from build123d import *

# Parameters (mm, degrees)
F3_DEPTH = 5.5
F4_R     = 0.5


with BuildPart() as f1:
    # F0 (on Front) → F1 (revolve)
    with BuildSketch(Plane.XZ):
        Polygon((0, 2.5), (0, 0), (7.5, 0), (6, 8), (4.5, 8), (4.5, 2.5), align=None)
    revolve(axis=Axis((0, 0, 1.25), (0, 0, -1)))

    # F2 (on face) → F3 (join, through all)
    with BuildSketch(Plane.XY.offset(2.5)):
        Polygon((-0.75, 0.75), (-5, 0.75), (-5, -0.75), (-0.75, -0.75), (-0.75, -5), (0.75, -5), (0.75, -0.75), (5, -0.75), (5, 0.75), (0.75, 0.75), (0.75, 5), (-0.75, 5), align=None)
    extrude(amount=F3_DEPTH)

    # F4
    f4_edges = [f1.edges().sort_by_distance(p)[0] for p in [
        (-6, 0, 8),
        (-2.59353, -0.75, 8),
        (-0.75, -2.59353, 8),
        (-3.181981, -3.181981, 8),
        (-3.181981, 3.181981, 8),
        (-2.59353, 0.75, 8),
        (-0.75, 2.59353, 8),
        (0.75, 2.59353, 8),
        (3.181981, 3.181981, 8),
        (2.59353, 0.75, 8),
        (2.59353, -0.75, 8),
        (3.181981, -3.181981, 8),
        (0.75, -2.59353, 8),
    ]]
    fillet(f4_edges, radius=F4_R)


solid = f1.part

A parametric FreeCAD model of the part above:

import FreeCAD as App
import Part
import Sketcher
Q = App.Units.Quantity


def edges_at(feature, points):
    """Names of the edges that pass closest to the given points."""
    edges = feature.Shape.Edges
    near = lambda p: min(range(len(edges)), key=lambda i: edges[i].distToShape(Part.Vertex(*p))[0])
    return sorted({f"Edge{near(p) + 1}" for p in points})


def add_polygon(sketch, points):
    """Adds a closed chain of lines whose ends are joined by coincident constraints."""
    first, n = sketch.GeometryCount, len(points)
    for a, b in zip(points, points[1:] + points[:1]):
        sketch.addGeometry(Part.LineSegment(App.Vector(*a, 0), App.Vector(*b, 0)), False)
    for i in range(n):
        sketch.addConstraint(Sketcher.Constraint("Coincident", first + i, 2, first + (i + 1) % n, 1))

doc = App.newDocument("Part")
body = doc.addObject("PartDesign::Body", "Body")

# Sketch on XZ plane
sketch1 = doc.addObject("Sketcher::SketchObject", "Sketch")
body.addObject(sketch1)
sketch1.AttachmentSupport = (doc.XZ_Plane, [""])
sketch1.MapMode = "FlatFace"
add_polygon(sketch1, [(0, 2.5), (0, 0), (7.5, 0), (6, 8), (4.5, 8), (4.5, 2.5)])  # lines 0-5
sketch1.addConstraint(Sketcher.Constraint("Vertical", 0))
sketch1.addConstraint(Sketcher.Constraint("Horizontal", 1))
sketch1.addConstraint(Sketcher.Constraint("Horizontal", 3))
sketch1.addConstraint(Sketcher.Constraint("Vertical", 4))
sketch1.addConstraint(Sketcher.Constraint("Horizontal", 5))
sketch1.addConstraint(Sketcher.Constraint("Coincident", 0, 2, -1, 1))
sketch1.addConstraint(Sketcher.Constraint("DistanceX", 1, 1, 1, 2, Q("7.5 mm")))
sketch1.addConstraint(Sketcher.Constraint("DistanceX", 3, 2, 3, 1, Q("1.5 mm")))
sketch1.addConstraint(Sketcher.Constraint("DistanceX", 5, 2, 5, 1, Q("4.5 mm")))
sketch1.addConstraint(Sketcher.Constraint("DistanceY", 0, 2, 0, 1, Q("2.5 mm")))
sketch1.addConstraint(Sketcher.Constraint("DistanceY", 4, 2, 4, 1, Q("5.5 mm")))
revolution = doc.addObject("PartDesign::Revolution", "Revolution")
body.addObject(revolution)
revolution.Profile = sketch1
revolution.ReferenceAxis = (sketch1, ["V_Axis"])
revolution.Angle = 360

# Sketch on XY plane
sketch2 = doc.addObject("Sketcher::SketchObject", "Sketch001")
body.addObject(sketch2)
sketch2.AttachmentSupport = (doc.XY_Plane, [""])
sketch2.MapMode = "FlatFace"
sketch2.AttachmentOffset = App.Placement(App.Vector(0, 0, 2.5), App.Rotation())
add_polygon(sketch2, [(-0.75, 0.75), (-5, 0.75), (-5, -0.75), (-0.75, -0.75), (-0.75, -5), (0.75, -5), (0.75, -0.75), (5, -0.75), (5, 0.75), (0.75, 0.75), (0.75, 5), (-0.75, 5)])  # lines 0-11
sketch2.addConstraint(Sketcher.Constraint("Horizontal", 0))
sketch2.addConstraint(Sketcher.Constraint("Vertical", 1))
sketch2.addConstraint(Sketcher.Constraint("Horizontal", 2))
sketch2.addConstraint(Sketcher.Constraint("Vertical", 3))
sketch2.addConstraint(Sketcher.Constraint("Horizontal", 4))
sketch2.addConstraint(Sketcher.Constraint("Vertical", 5))
sketch2.addConstraint(Sketcher.Constraint("Horizontal", 6))
sketch2.addConstraint(Sketcher.Constraint("Vertical", 7))
sketch2.addConstraint(Sketcher.Constraint("Horizontal", 8))
sketch2.addConstraint(Sketcher.Constraint("Vertical", 9))
sketch2.addConstraint(Sketcher.Constraint("Horizontal", 10))
sketch2.addConstraint(Sketcher.Constraint("Vertical", 11))
sketch2.addConstraint(Sketcher.Constraint("Symmetric", 0, 2, 6, 2, -1, 1))
sketch2.addConstraint(Sketcher.Constraint("Symmetric", 2, 2, 8, 2, -1, 1))
sketch2.addConstraint(Sketcher.Constraint("Symmetric", 4, 2, 10, 2, -1, 1))
sketch2.addConstraint(Sketcher.Constraint("Symmetric", 2, 2, 5, 2, -2))
sketch2.addConstraint(Sketcher.Constraint("Equal", 10, 1))
sketch2.addConstraint(Sketcher.Constraint("Equal", 8, 3))
sketch2.addConstraint(Sketcher.Constraint("DistanceX", 4, 1, 4, 2, Q("1.5 mm")))
sketch2.addConstraint(Sketcher.Constraint("DistanceX", 0, 2, -1, 1, Q("5 mm")))
pad1 = doc.addObject("PartDesign::Pad", "Pad")
body.addObject(pad1)
pad1.Profile = sketch2
pad1.Length = 5.5
doc.recompute()

fillet = doc.addObject("PartDesign::Fillet", "Fillet")
body.addObject(fillet)
fillet.Base = (pad1, edges_at(pad1, [
    (-6, 0, 8),
    (-2.594, -0.75, 8),
    (-0.75, -2.594, 8),
    (-3.182, -3.182, 8),
    (-3.182, 3.182, 8),
    (-2.594, 0.75, 8),
    (-0.75, 2.594, 8),
    (0.75, 2.594, 8),
    (3.182, 3.182, 8),
    (2.594, 0.75, 8),
    (2.594, -0.75, 8),
    (3.182, -3.182, 8),
    (0.75, -2.594, 8),
]))
fillet.Radius = 0.5

doc.recompute()
